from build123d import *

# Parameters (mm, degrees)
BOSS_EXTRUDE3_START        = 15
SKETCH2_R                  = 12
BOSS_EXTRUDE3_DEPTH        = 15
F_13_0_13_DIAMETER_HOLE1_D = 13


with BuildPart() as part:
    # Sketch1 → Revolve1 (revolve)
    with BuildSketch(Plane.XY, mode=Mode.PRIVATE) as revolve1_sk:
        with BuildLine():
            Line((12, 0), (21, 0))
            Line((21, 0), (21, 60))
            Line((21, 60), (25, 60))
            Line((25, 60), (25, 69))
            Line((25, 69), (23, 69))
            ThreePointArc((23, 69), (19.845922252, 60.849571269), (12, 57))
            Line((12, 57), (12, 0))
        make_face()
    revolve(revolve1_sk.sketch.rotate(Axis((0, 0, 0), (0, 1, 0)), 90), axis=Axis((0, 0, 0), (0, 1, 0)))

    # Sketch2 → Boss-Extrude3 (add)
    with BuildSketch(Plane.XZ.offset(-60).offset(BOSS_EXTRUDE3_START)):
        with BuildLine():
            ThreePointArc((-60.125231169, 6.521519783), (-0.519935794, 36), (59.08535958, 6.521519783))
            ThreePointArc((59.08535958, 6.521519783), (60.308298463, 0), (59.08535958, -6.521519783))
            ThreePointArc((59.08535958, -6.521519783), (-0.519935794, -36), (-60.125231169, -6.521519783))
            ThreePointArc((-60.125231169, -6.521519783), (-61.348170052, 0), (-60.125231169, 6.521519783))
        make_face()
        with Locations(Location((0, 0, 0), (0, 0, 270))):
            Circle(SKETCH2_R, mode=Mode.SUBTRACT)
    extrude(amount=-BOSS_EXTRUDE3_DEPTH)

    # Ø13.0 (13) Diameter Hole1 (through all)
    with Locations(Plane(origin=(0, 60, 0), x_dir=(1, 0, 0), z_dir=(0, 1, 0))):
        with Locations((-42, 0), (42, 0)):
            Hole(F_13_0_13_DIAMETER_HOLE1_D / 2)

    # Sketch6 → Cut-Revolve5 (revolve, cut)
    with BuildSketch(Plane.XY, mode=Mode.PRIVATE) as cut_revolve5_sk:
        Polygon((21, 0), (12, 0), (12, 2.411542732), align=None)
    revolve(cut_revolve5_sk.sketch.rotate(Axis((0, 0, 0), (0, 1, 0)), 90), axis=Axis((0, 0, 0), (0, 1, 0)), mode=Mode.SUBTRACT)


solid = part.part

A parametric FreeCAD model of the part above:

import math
import FreeCAD as App
import Part
import Sketcher
Q = App.Units.Quantity


def add_polygon(sketch, points):
    """Adds a closed chain of lines whose ends are joined by coincident constraints."""
    first, n = sketch.GeometryCount, len(points)
    for a, b in zip(points, points[1:] + points[:1]):
        sketch.addGeometry(Part.LineSegment(App.Vector(*a, 0), App.Vector(*b, 0)), False)
    for i in range(n):
        sketch.addConstraint(Sketcher.Constraint("Coincident", first + i, 2, first + (i + 1) % n, 1))

doc = App.newDocument("Part")
body = doc.addObject("PartDesign::Body", "Body")

# Sketch on XY plane
sketch1 = body.newObject("Sketcher::SketchObject", "Sketch")
sketch1.AttachmentSupport = (doc.getObject("XY_Plane"), [""])
sketch1.MapMode = "FlatFace"
sketch1.addGeometry([
    Part.LineSegment(App.Vector(12, 0, 0), App.Vector(21, 0, 0)),  # 0
    Part.LineSegment(App.Vector(21, 0, 0), App.Vector(21, 60, 0)),  # 1
    Part.LineSegment(App.Vector(21, 60, 0), App.Vector(25, 60, 0)),  # 2
    Part.LineSegment(App.Vector(25, 60, 0), App.Vector(25, 69, 0)),  # 3
    Part.LineSegment(App.Vector(25, 69, 0), App.Vector(23, 69, 0)),  # 4
    Part.ArcOfCircle(Part.Circle(App.Vector(11, 69, 0), App.Vector(0, 0, 1), 12), math.radians(-85), math.radians(0)),  # 5
    Part.LineSegment(App.Vector(12, 57, 0), App.Vector(12, 0, 0)),  # 6
], False)
sketch1.addConstraint([
    Sketcher.Constraint("Coincident", 0, 2, 1, 1),
    Sketcher.Constraint("Coincident", 1, 2, 2, 1),
    Sketcher.Constraint("Coincident", 2, 2, 3, 1),
    Sketcher.Constraint("Coincident", 3, 2, 4, 1),
    Sketcher.Constraint("Coincident", 4, 2, 5, 2),
    Sketcher.Constraint("Coincident", 5, 1, 6, 1),
    Sketcher.Constraint("Coincident", 6, 2, 0, 1),
    Sketcher.Constraint("Horizontal", 0),
    Sketcher.Constraint("Vertical", 1),
    Sketcher.Constraint("Horizontal", 2),
    Sketcher.Constraint("Vertical", 3),
    Sketcher.Constraint("Horizontal", 4),
    Sketcher.Constraint("Vertical", 6),
    Sketcher.Constraint("PointOnObject", 0, 2, -1),
    Sketcher.Constraint("Equal", 0, 3),
    Sketcher.Constraint("Radius", 5, Q("12 mm")),
    Sketcher.Constraint("DistanceX", 0, 1, 0, 2, Q("9 mm")),
    Sketcher.Constraint("DistanceX", 2, 1, 2, 2, Q("4 mm")),
    Sketcher.Constraint("DistanceX", 4, 2, 4, 1, Q("2 mm")),
    Sketcher.Constraint("DistanceY", 1, 1, 1, 2, Q("60 mm")),
    Sketcher.Constraint("DistanceY", 6, 2, 6, 1, Q("57 mm")),
    Sketcher.Constraint("DistanceX", -1, 1, 0, 2, Q("21 mm")),
])
revolution = body.newObject("PartDesign::Revolution", "Revolution")
revolution.Profile = sketch1
revolution.ReferenceAxis = (sketch1, ["V_Axis"])
revolution.Angle = 360

# Sketch on XZ plane
sketch2 = body.newObject("Sketcher::SketchObject", "Sketch001")
sketch2.AttachmentSupport = (doc.getObject("XZ_Plane"), [""])
sketch2.MapMode = "FlatFace"
sketch2.AttachmentOffset = App.Placement(App.Vector(0, 0, -45), App.Rotation())
sketch2.addGeometry([
    Part.ArcOfCircle(Part.Circle(App.Vector(-1, -39, 0), App.Vector(0, 0, 1), 75), math.radians(37), math.radians(143)),  # 0
    Part.ArcOfCircle(Part.Circle(App.Vector(-43, 0, 0), App.Vector(0, 0, 1), 18), math.radians(159), math.radians(201)),  # 1
    Part.ArcOfCircle(Part.Circle(App.Vector(-1, 39, 0), App.Vector(0, 0, 1), 75), math.radians(-143), math.radians(-37)),  # 2
    Part.ArcOfCircle(Part.Circle(App.Vector(42, 0, 0), App.Vector(0, 0, 1), 18), math.radians(-21), math.radians(21)),  # 3
    Part.Circle(App.Vector(0, 0, 0), App.Vector(0, 0, 1), 12),  # 4
], False)
sketch2.addConstraint([
    Sketcher.Constraint("Coincident", 0, 2, 1, 1),
    Sketcher.Constraint("Coincident", 1, 2, 2, 1),
    Sketcher.Constraint("Coincident", 2, 2, 3, 1),
    Sketcher.Constraint("Coincident", 3, 2, 0, 1),
    Sketcher.Constraint("Coincident", 4, 3, -1, 1),
    Sketcher.Constraint("Equal", 0, 2),
    Sketcher.Constraint("Equal", 1, 3),
    Sketcher.Constraint("Symmetric", 0, 3, 2, 3, -1),
    Sketcher.Constraint("PointOnObject", 1, 3, -1),
    Sketcher.Constraint("PointOnObject", 3, 3, -1),
    Sketcher.Constraint("Horizontal", 1, 2, 2, 2),
    Sketcher.Constraint("Diameter", 4, Q("24 mm")),
    Sketcher.Constraint("Radius", 0, Q("75 mm")),
    Sketcher.Constraint("Radius", 1, Q("18 mm")),
    Sketcher.Constraint("DistanceY", 0, 3, -1, 1, Q("39 mm")),
    Sketcher.Constraint("DistanceX", -1, 1, 3, 3, Q("42.308298 mm")),
    Sketcher.Constraint("DistanceX", 1, 3, -1, 1, Q("43.34817 mm")),
])
pad1 = body.newObject("PartDesign::Pad", "Pad")
pad1.Profile = sketch2
pad1.Length = 15
pad1.Reversed = True

# Sketch on XZ plane
sketch3 = body.newObject("Sketcher::SketchObject", "Sketch002")
sketch3.AttachmentSupport = (doc.getObject("XZ_Plane"), [""])
sketch3.MapMode = "FlatFace"
sketch3.AttachmentOffset = App.Placement(App.Vector(0, 0, -60), App.Rotation())
sketch3.addGeometry([
    Part.Circle(App.Vector(-42, 0, 0), App.Vector(0, 0, 1), 6),
    Part.Circle(App.Vector(42, 0, 0), App.Vector(0, 0, 1), 6),
], False)
sketch3.addConstraint([
    Sketcher.Constraint("Equal", 0, 1),
    Sketcher.Constraint("Symmetric", 0, 3, 1, 3, -1, 1),
    Sketcher.Constraint("PointOnObject", 0, 3, -1),
    Sketcher.Constraint("Diameter", 0, Q("13 mm")),
    Sketcher.Constraint("DistanceX", 0, 3, -1, 1, Q("42 mm")),
])
doc.recompute()
hole = body.newObject("PartDesign::Hole", "Hole")
hole.Profile = sketch3
hole.ThreadType = "None"
hole.Diameter = 13
hole.DepthType = "ThroughAll"
hole.Reversed = True

# Sketch on XY plane
sketch4 = body.newObject("Sketcher::SketchObject", "Sketch003")
sketch4.AttachmentSupport = (doc.getObject("XY_Plane"), [""])
sketch4.MapMode = "FlatFace"
add_polygon(sketch4, [(12, 0), (21, 0), (12, 2.4)])  # lines 0-2
sketch4.addConstraint([
    Sketcher.Constraint("Horizontal", 0),
    Sketcher.Constraint("Vertical", 2),
    Sketcher.Constraint("PointOnObject", 0, 2, -1),
    Sketcher.Constraint("DistanceX", 0, 1, 0, 2, Q("9 mm")),
    Sketcher.Constraint("Angle", 1, Q("165 deg")),
    Sketcher.Constraint("DistanceX", -1, 1, 0, 2, Q("21 mm")),
])
groove = body.newObject("PartDesign::Groove", "Groove")
groove.Profile = sketch4
groove.ReferenceAxis = (sketch4, ["V_Axis"])
groove.Angle = 360

doc.recompute()
